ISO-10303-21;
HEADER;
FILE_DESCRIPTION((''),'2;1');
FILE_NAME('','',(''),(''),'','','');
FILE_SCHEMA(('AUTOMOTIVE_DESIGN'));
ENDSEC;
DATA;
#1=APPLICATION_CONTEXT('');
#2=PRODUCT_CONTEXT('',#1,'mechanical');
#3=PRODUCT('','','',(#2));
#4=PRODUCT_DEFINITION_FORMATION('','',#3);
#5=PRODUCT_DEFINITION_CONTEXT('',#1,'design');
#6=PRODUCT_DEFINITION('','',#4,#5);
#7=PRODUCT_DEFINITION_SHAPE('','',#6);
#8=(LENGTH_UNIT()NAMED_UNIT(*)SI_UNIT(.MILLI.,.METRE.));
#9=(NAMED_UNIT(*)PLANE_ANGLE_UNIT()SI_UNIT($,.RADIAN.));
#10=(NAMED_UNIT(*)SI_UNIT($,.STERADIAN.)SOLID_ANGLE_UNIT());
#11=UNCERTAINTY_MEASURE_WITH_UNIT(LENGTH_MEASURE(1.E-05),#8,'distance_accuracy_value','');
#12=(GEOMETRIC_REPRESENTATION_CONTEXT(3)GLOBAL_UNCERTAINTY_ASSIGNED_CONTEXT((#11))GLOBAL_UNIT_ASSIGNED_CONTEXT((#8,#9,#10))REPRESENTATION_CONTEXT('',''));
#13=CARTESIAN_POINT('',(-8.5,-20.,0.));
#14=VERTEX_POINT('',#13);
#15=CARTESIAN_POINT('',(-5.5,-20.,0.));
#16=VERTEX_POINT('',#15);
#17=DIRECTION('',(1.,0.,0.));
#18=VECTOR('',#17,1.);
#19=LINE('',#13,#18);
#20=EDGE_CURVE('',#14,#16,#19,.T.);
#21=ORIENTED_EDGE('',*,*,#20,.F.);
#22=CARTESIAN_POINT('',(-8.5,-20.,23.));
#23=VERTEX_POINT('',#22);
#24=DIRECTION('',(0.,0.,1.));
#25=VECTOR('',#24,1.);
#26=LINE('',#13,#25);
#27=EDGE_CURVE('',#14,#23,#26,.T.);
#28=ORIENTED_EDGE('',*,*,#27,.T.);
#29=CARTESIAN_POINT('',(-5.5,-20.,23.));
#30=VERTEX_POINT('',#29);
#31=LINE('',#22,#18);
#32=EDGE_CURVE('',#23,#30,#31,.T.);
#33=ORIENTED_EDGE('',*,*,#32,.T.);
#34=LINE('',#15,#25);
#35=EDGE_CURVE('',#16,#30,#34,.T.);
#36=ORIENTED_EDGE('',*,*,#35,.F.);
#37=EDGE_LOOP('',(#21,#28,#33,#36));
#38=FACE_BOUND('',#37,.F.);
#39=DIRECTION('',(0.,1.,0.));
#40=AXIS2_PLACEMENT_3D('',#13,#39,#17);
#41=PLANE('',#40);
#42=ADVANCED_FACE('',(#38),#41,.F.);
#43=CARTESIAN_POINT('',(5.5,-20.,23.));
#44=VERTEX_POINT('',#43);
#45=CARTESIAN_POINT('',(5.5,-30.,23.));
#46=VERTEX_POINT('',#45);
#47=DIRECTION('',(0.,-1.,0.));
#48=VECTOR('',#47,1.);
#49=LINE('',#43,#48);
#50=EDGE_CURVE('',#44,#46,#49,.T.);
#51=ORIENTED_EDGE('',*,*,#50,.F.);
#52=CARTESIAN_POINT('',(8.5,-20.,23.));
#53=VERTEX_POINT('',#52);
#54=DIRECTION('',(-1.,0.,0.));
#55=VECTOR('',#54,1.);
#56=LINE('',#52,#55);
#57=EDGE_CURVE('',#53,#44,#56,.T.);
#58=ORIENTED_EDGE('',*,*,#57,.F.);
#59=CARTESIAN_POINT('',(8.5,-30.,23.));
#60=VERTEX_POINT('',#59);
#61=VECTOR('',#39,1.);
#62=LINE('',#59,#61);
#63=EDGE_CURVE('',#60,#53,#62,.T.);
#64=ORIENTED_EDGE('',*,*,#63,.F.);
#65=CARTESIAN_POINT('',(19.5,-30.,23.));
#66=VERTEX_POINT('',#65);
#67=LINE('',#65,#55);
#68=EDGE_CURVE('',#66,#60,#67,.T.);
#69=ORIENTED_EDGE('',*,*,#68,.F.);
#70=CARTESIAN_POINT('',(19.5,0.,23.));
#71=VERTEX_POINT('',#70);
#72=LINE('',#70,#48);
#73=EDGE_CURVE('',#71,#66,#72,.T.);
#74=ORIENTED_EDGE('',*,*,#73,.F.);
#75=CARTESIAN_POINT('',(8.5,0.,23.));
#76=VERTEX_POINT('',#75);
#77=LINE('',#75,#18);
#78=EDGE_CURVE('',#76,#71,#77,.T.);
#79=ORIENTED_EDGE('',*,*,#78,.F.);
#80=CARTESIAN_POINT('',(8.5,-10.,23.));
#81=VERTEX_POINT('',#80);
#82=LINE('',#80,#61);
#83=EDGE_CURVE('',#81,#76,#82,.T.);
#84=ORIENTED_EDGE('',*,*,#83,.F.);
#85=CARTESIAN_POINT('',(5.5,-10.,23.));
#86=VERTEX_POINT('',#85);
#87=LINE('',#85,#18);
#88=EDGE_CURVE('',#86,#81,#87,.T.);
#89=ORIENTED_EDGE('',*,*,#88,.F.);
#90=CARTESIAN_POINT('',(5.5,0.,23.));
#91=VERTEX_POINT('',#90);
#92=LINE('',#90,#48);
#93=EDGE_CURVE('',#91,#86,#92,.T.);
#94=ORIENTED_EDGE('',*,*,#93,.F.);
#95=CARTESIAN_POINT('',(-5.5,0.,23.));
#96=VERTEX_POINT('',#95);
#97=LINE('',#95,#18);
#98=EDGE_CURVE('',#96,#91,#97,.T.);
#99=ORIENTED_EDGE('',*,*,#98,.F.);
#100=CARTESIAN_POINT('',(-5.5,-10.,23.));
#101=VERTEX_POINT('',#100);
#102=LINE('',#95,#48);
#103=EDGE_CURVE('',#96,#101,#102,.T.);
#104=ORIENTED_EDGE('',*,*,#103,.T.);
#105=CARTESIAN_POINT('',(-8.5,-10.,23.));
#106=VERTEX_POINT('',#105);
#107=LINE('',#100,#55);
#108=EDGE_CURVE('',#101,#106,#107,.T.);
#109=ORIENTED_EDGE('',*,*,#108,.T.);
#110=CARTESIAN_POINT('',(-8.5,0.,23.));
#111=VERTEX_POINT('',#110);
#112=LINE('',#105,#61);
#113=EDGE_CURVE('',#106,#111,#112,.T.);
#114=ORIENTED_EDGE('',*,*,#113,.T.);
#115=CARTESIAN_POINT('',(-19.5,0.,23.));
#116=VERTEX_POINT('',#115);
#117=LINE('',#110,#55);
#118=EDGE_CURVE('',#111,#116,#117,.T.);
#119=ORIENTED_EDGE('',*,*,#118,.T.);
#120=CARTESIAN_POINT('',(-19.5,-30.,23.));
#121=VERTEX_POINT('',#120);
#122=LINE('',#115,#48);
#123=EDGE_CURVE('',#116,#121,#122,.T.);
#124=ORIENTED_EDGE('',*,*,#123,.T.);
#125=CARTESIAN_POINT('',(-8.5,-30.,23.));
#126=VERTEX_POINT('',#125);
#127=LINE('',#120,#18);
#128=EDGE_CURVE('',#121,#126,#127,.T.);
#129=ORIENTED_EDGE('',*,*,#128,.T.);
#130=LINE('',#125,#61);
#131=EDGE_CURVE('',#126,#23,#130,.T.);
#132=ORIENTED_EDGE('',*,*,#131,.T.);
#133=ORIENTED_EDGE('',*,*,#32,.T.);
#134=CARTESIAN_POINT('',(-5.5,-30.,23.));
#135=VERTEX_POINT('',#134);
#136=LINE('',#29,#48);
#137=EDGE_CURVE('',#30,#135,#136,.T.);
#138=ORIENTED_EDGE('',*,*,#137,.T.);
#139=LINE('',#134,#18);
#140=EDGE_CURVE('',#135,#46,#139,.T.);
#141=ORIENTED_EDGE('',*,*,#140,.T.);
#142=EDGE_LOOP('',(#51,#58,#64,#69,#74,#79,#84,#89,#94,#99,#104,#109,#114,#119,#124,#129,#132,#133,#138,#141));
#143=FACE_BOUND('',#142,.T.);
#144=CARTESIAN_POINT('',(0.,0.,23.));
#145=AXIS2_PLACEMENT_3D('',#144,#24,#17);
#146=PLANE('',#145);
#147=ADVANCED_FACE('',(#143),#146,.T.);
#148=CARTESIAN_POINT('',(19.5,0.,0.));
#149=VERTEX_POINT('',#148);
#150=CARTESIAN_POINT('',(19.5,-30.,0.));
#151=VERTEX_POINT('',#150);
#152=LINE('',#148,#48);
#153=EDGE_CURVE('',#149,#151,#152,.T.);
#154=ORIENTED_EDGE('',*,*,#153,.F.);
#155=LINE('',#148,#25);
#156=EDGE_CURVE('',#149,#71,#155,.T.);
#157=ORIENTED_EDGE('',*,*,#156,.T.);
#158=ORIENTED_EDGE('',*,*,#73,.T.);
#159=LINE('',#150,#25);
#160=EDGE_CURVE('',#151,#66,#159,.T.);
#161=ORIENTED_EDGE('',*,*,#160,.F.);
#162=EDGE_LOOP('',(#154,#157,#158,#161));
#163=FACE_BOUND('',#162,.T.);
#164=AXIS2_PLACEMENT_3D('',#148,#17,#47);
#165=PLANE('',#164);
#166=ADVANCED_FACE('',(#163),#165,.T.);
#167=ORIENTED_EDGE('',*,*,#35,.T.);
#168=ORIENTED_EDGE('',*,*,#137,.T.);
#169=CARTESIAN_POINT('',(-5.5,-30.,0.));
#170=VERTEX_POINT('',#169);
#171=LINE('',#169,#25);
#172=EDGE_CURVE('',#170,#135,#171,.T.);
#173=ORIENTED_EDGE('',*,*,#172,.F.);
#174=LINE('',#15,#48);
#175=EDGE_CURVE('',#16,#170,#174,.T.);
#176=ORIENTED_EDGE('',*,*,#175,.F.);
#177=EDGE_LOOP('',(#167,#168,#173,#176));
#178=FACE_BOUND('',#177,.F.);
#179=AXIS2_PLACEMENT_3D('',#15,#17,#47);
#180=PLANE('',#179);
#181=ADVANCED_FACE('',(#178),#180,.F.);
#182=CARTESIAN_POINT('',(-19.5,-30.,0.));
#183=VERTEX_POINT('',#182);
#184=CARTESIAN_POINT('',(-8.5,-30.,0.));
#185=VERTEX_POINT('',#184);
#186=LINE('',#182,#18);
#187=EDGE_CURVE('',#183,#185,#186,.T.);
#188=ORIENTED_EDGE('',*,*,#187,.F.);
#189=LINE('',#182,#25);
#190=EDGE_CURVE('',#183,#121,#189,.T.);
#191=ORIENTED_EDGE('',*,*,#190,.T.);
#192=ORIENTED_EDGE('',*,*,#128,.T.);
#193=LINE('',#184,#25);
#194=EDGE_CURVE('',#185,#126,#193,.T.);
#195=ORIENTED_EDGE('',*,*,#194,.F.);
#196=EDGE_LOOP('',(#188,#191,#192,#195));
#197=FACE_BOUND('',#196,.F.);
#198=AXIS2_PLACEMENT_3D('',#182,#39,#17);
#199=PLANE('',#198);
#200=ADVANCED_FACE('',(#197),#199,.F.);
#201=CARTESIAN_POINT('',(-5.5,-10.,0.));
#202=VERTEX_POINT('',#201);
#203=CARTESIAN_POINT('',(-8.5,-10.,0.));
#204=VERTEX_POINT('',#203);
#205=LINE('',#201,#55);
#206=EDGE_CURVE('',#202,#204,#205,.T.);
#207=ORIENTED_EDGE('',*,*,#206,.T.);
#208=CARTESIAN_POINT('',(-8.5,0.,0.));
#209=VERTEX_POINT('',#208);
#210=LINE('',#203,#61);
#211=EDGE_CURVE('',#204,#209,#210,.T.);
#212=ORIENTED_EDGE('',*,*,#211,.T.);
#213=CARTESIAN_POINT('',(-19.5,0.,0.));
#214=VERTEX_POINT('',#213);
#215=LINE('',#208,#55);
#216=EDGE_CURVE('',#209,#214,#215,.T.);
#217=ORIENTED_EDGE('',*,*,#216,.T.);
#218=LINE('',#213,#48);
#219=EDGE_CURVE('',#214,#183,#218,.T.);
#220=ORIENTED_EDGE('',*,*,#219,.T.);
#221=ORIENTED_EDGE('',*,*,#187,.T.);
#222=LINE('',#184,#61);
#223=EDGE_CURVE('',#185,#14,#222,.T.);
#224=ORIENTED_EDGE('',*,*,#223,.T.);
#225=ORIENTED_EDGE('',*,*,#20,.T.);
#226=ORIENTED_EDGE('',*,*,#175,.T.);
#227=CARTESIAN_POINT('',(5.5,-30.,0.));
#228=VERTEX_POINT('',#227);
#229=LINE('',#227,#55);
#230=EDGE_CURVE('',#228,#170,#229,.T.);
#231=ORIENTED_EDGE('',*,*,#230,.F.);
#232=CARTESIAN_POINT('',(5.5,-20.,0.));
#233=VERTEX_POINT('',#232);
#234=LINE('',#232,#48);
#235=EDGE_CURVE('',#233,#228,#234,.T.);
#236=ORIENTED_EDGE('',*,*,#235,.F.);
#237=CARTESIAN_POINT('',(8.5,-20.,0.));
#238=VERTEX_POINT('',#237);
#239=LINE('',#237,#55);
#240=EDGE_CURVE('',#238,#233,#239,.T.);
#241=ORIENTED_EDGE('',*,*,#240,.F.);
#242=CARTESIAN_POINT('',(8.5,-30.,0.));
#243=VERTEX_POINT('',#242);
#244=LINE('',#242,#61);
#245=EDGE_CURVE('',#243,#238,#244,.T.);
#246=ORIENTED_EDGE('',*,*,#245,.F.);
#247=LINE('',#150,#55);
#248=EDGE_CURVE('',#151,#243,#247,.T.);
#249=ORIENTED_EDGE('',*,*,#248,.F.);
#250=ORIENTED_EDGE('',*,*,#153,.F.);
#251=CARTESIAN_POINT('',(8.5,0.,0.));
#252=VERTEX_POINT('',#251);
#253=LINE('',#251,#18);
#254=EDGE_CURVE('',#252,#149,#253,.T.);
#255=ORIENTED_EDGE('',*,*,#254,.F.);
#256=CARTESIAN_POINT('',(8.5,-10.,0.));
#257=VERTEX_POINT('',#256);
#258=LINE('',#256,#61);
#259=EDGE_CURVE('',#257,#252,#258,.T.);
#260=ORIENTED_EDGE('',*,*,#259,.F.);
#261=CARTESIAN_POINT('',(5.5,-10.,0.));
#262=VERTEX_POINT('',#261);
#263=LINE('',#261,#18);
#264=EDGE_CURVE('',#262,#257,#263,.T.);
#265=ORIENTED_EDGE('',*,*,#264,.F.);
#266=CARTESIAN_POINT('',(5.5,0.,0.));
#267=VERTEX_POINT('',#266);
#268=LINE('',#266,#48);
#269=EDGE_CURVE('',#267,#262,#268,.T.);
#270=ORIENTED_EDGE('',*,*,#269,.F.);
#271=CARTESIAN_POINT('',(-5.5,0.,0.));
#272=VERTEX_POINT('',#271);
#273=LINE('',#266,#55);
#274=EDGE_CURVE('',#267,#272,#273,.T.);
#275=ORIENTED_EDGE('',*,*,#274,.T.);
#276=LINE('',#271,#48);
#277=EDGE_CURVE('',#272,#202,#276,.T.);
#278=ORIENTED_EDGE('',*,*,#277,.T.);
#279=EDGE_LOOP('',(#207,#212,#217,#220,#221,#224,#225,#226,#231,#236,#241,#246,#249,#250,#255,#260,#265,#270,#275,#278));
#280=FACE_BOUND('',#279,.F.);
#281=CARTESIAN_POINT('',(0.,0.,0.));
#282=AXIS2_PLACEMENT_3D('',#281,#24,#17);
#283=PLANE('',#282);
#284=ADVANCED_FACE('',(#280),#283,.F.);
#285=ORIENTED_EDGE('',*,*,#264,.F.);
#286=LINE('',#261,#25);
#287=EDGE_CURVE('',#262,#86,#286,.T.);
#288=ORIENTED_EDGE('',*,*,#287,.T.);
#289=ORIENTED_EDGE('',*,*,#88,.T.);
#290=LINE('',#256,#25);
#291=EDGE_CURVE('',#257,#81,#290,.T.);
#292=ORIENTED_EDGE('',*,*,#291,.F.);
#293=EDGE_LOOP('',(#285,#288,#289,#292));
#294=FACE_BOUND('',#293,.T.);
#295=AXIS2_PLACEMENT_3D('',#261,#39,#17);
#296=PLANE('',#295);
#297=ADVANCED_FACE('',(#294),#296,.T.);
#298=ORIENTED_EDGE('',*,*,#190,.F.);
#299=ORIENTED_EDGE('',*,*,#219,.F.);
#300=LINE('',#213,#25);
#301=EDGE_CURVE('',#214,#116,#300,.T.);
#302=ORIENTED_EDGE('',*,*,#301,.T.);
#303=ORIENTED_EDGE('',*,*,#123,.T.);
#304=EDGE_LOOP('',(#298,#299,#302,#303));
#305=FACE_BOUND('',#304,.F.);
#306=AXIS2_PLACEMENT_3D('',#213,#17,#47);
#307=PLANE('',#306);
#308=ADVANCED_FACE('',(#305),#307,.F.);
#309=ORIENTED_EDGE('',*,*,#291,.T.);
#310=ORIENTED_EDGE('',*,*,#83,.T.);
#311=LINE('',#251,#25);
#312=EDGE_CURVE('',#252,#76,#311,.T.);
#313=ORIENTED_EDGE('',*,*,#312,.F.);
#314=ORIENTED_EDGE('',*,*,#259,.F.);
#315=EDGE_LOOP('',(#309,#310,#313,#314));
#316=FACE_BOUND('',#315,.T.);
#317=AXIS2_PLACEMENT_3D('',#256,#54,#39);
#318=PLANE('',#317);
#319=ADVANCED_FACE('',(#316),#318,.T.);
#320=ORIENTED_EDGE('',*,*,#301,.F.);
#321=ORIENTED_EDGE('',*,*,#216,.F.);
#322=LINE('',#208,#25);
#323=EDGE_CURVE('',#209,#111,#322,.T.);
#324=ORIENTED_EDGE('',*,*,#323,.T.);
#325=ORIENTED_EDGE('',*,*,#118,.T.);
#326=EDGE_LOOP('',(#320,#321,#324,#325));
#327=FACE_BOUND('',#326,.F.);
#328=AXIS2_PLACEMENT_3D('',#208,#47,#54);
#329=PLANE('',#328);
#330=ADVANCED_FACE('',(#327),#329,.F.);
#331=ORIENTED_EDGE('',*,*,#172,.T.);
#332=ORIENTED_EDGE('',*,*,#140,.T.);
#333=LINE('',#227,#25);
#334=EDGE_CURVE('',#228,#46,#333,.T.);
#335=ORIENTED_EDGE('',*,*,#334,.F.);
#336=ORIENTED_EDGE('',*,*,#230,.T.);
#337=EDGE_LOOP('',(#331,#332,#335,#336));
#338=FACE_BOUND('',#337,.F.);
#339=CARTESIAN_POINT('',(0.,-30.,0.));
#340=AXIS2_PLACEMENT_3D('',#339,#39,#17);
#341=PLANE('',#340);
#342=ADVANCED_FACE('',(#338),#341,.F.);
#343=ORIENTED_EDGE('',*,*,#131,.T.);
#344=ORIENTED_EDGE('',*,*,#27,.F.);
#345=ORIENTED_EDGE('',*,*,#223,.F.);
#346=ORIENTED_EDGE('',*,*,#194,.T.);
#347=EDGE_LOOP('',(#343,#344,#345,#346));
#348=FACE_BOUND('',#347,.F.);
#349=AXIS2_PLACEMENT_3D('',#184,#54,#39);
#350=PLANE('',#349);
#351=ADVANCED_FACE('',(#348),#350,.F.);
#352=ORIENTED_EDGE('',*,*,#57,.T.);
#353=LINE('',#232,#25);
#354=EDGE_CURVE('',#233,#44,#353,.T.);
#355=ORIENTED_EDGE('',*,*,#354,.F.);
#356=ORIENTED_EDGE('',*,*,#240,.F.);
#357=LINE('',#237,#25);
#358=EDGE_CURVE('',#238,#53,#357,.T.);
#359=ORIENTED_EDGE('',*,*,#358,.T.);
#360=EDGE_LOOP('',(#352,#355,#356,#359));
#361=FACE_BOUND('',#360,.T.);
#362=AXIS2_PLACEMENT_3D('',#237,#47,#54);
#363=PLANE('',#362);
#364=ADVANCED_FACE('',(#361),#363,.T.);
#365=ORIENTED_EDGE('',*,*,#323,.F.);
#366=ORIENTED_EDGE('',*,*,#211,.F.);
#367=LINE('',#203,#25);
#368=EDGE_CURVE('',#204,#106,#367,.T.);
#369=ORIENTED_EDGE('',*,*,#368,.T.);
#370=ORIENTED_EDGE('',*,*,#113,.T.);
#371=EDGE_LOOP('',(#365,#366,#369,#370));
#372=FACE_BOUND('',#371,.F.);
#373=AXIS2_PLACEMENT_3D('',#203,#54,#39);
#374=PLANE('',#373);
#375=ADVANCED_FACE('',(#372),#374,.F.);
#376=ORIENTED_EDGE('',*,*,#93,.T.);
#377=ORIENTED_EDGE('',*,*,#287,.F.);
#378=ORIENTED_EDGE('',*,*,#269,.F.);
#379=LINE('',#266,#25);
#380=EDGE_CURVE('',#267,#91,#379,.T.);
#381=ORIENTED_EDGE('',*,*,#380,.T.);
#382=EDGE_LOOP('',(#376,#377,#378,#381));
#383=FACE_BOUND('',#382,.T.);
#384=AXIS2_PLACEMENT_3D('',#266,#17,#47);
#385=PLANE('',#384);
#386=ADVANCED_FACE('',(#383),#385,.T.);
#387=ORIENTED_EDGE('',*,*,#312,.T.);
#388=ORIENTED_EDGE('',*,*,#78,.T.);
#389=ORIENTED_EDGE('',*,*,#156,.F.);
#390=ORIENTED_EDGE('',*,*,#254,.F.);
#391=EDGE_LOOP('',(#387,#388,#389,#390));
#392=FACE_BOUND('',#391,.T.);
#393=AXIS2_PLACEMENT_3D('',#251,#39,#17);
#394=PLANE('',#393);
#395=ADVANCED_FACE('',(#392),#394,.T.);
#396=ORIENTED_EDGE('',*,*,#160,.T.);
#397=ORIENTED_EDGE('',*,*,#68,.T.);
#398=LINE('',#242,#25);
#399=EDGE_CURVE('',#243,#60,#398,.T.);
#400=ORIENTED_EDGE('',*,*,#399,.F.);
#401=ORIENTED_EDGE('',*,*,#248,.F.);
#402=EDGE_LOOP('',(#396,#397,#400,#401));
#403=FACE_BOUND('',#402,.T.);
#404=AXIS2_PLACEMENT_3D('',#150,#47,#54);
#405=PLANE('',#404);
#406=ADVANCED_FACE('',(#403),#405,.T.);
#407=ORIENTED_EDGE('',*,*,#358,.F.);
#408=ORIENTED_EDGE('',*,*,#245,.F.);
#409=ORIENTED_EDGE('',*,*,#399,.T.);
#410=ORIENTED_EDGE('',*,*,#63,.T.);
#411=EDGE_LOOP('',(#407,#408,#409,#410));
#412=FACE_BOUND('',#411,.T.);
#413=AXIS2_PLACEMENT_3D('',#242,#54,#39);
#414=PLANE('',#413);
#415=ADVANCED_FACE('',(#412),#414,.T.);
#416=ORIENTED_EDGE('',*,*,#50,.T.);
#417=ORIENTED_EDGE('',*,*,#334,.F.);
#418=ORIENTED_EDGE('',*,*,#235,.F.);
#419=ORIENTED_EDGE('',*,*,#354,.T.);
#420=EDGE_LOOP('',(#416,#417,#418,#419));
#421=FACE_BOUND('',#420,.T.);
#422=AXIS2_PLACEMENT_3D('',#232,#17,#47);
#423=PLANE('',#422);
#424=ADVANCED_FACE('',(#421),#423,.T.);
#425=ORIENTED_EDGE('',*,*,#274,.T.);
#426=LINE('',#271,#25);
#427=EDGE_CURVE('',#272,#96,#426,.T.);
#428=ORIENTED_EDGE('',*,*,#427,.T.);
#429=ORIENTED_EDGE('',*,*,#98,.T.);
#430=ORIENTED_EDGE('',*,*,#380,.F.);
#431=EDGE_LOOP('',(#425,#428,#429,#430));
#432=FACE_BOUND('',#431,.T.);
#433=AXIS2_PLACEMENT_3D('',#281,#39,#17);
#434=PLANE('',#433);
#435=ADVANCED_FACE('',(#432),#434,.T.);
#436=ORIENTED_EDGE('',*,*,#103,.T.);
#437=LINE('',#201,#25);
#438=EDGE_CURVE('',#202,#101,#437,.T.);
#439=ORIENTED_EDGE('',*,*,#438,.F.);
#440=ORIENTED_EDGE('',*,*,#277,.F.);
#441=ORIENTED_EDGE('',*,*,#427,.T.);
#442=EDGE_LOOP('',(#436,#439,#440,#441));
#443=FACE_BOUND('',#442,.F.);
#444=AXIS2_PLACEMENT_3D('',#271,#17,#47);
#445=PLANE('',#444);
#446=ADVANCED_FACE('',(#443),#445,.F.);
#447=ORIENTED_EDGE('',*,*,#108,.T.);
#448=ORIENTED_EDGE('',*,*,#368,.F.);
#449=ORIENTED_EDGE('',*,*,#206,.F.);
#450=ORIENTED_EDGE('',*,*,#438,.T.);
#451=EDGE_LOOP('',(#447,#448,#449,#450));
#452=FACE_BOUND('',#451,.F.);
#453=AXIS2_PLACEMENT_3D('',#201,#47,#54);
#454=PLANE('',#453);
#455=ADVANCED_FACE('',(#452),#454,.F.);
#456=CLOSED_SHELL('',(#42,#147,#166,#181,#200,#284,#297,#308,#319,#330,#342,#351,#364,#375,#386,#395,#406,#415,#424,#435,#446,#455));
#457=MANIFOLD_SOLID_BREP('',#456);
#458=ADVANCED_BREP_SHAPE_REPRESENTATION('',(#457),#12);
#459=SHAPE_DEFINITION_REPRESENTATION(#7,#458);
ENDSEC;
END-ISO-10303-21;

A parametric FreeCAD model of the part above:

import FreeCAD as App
import Part
import Sketcher


def add_polygon(sketch, points):
    """Adds a closed chain of lines whose ends are joined by coincident constraints."""
    first, n = sketch.GeometryCount, len(points)
    for a, b in zip(points, points[1:] + points[:1]):
        sketch.addGeometry(Part.LineSegment(App.Vector(*a, 0), App.Vector(*b, 0)), False)
    for i in range(n):
        sketch.addConstraint(Sketcher.Constraint("Coincident", first + i, 2, first + (i + 1) % n, 1))

doc = App.newDocument("Part")
params = doc.addObject("Spreadsheet::Sheet", "Params")
for row, (alias, value) in enumerate([
    ("sketch1_width", "11 mm"),
    ("sketch1_width2", "3 mm"),
    ("sketch1_height", "10 mm"),
    ("sketch1_height2", "30 mm"),
    ("pad1_length", "23 mm"),
], start=1):
    params.set(f"A{row}", alias)
    params.set(f"B{row}", "=" + value)
    params.setAlias(f"B{row}", alias)

body = doc.addObject("PartDesign::Body", "Body")

# Sketch on XY plane
sketch1 = body.newObject("Sketcher::SketchObject", "Sketch")
sketch1.AttachmentSupport = (doc.getObject("XY_Plane"), [""])
sketch1.MapMode = "FlatFace"
add_polygon(sketch1, [(5.5, 0), (-5.5, 0), (-5.5, -10), (-8.5, -10), (-8.5, 0), (-19.5, 0), (-19.5, -30), (-8.5, -30), (-8.5, -20), (-5.5, -20), (-5.5, -30), (5.5, -30), (5.5, -20), (8.5, -20), (8.5, -30), (19.5, -30), (19.5, 0), (8.5, 0), (8.5, -10), (5.5, -10)])  # lines 0-19
sketch1.addConstraint([
    Sketcher.Constraint("Horizontal", 0),
    Sketcher.Constraint("Vertical", 1),
    Sketcher.Constraint("Horizontal", 2),
    Sketcher.Constraint("Vertical", 3),
    Sketcher.Constraint("Horizontal", 4),
    Sketcher.Constraint("Vertical", 5),
    Sketcher.Constraint("Horizontal", 6),
    Sketcher.Constraint("Vertical", 7),
    Sketcher.Constraint("Horizontal", 8),
    Sketcher.Constraint("Vertical", 9),
    Sketcher.Constraint("Horizontal", 10),
    Sketcher.Constraint("Vertical", 11),
    Sketcher.Constraint("Horizontal", 12),
    Sketcher.Constraint("Vertical", 13),
    Sketcher.Constraint("Horizontal", 14),
    Sketcher.Constraint("Vertical", 15),
    Sketcher.Constraint("Horizontal", 16),
    Sketcher.Constraint("Vertical", 17),
    Sketcher.Constraint("Horizontal", 18),
    Sketcher.Constraint("Vertical", 19),
    Sketcher.Constraint("Symmetric", 4, 2, 15, 2, -1, 1),
    Sketcher.Constraint("Symmetric", 0, 2, 19, 2, -1, 1),
    Sketcher.Constraint("Symmetric", 8, 2, 11, 2, -2),
    Sketcher.Constraint("Symmetric", 6, 2, 13, 2, -2),
    Sketcher.Constraint("Symmetric", 3, 2, 16, 2, -2),
    Sketcher.Constraint("Horizontal", 6, 2, 9, 2),
    Sketcher.Constraint("Horizontal", 2, 2, 17, 2),
    Sketcher.Constraint("Vertical", 3, 2, 6, 2),
    Sketcher.Constraint("Vertical", 1, 2, 8, 2),
    Sketcher.Constraint("Equal", 0, 4),
    Sketcher.Constraint("Equal", 3, 7),
    Sketcher.Constraint("DistanceX", 0, 2, 0, 1, 11.0),
    Sketcher.Constraint("DistanceX", 2, 2, 2, 1, 3.0),
    Sketcher.Constraint("DistanceY", 1, 2, 1, 1, 10.0),
    Sketcher.Constraint("DistanceY", 5, 2, 5, 1, 30.0),
])
sketch1.setExpression("Constraints[51]", "Params.sketch1_width")
sketch1.setExpression("Constraints[52]", "Params.sketch1_width2")
sketch1.setExpression("Constraints[53]", "Params.sketch1_height")
sketch1.setExpression("Constraints[54]", "Params.sketch1_height2")
pad1 = body.newObject("PartDesign::Pad", "Pad")
pad1.Profile = sketch1
pad1.setExpression("Length", "Params.pad1_length")

doc.recompute()
